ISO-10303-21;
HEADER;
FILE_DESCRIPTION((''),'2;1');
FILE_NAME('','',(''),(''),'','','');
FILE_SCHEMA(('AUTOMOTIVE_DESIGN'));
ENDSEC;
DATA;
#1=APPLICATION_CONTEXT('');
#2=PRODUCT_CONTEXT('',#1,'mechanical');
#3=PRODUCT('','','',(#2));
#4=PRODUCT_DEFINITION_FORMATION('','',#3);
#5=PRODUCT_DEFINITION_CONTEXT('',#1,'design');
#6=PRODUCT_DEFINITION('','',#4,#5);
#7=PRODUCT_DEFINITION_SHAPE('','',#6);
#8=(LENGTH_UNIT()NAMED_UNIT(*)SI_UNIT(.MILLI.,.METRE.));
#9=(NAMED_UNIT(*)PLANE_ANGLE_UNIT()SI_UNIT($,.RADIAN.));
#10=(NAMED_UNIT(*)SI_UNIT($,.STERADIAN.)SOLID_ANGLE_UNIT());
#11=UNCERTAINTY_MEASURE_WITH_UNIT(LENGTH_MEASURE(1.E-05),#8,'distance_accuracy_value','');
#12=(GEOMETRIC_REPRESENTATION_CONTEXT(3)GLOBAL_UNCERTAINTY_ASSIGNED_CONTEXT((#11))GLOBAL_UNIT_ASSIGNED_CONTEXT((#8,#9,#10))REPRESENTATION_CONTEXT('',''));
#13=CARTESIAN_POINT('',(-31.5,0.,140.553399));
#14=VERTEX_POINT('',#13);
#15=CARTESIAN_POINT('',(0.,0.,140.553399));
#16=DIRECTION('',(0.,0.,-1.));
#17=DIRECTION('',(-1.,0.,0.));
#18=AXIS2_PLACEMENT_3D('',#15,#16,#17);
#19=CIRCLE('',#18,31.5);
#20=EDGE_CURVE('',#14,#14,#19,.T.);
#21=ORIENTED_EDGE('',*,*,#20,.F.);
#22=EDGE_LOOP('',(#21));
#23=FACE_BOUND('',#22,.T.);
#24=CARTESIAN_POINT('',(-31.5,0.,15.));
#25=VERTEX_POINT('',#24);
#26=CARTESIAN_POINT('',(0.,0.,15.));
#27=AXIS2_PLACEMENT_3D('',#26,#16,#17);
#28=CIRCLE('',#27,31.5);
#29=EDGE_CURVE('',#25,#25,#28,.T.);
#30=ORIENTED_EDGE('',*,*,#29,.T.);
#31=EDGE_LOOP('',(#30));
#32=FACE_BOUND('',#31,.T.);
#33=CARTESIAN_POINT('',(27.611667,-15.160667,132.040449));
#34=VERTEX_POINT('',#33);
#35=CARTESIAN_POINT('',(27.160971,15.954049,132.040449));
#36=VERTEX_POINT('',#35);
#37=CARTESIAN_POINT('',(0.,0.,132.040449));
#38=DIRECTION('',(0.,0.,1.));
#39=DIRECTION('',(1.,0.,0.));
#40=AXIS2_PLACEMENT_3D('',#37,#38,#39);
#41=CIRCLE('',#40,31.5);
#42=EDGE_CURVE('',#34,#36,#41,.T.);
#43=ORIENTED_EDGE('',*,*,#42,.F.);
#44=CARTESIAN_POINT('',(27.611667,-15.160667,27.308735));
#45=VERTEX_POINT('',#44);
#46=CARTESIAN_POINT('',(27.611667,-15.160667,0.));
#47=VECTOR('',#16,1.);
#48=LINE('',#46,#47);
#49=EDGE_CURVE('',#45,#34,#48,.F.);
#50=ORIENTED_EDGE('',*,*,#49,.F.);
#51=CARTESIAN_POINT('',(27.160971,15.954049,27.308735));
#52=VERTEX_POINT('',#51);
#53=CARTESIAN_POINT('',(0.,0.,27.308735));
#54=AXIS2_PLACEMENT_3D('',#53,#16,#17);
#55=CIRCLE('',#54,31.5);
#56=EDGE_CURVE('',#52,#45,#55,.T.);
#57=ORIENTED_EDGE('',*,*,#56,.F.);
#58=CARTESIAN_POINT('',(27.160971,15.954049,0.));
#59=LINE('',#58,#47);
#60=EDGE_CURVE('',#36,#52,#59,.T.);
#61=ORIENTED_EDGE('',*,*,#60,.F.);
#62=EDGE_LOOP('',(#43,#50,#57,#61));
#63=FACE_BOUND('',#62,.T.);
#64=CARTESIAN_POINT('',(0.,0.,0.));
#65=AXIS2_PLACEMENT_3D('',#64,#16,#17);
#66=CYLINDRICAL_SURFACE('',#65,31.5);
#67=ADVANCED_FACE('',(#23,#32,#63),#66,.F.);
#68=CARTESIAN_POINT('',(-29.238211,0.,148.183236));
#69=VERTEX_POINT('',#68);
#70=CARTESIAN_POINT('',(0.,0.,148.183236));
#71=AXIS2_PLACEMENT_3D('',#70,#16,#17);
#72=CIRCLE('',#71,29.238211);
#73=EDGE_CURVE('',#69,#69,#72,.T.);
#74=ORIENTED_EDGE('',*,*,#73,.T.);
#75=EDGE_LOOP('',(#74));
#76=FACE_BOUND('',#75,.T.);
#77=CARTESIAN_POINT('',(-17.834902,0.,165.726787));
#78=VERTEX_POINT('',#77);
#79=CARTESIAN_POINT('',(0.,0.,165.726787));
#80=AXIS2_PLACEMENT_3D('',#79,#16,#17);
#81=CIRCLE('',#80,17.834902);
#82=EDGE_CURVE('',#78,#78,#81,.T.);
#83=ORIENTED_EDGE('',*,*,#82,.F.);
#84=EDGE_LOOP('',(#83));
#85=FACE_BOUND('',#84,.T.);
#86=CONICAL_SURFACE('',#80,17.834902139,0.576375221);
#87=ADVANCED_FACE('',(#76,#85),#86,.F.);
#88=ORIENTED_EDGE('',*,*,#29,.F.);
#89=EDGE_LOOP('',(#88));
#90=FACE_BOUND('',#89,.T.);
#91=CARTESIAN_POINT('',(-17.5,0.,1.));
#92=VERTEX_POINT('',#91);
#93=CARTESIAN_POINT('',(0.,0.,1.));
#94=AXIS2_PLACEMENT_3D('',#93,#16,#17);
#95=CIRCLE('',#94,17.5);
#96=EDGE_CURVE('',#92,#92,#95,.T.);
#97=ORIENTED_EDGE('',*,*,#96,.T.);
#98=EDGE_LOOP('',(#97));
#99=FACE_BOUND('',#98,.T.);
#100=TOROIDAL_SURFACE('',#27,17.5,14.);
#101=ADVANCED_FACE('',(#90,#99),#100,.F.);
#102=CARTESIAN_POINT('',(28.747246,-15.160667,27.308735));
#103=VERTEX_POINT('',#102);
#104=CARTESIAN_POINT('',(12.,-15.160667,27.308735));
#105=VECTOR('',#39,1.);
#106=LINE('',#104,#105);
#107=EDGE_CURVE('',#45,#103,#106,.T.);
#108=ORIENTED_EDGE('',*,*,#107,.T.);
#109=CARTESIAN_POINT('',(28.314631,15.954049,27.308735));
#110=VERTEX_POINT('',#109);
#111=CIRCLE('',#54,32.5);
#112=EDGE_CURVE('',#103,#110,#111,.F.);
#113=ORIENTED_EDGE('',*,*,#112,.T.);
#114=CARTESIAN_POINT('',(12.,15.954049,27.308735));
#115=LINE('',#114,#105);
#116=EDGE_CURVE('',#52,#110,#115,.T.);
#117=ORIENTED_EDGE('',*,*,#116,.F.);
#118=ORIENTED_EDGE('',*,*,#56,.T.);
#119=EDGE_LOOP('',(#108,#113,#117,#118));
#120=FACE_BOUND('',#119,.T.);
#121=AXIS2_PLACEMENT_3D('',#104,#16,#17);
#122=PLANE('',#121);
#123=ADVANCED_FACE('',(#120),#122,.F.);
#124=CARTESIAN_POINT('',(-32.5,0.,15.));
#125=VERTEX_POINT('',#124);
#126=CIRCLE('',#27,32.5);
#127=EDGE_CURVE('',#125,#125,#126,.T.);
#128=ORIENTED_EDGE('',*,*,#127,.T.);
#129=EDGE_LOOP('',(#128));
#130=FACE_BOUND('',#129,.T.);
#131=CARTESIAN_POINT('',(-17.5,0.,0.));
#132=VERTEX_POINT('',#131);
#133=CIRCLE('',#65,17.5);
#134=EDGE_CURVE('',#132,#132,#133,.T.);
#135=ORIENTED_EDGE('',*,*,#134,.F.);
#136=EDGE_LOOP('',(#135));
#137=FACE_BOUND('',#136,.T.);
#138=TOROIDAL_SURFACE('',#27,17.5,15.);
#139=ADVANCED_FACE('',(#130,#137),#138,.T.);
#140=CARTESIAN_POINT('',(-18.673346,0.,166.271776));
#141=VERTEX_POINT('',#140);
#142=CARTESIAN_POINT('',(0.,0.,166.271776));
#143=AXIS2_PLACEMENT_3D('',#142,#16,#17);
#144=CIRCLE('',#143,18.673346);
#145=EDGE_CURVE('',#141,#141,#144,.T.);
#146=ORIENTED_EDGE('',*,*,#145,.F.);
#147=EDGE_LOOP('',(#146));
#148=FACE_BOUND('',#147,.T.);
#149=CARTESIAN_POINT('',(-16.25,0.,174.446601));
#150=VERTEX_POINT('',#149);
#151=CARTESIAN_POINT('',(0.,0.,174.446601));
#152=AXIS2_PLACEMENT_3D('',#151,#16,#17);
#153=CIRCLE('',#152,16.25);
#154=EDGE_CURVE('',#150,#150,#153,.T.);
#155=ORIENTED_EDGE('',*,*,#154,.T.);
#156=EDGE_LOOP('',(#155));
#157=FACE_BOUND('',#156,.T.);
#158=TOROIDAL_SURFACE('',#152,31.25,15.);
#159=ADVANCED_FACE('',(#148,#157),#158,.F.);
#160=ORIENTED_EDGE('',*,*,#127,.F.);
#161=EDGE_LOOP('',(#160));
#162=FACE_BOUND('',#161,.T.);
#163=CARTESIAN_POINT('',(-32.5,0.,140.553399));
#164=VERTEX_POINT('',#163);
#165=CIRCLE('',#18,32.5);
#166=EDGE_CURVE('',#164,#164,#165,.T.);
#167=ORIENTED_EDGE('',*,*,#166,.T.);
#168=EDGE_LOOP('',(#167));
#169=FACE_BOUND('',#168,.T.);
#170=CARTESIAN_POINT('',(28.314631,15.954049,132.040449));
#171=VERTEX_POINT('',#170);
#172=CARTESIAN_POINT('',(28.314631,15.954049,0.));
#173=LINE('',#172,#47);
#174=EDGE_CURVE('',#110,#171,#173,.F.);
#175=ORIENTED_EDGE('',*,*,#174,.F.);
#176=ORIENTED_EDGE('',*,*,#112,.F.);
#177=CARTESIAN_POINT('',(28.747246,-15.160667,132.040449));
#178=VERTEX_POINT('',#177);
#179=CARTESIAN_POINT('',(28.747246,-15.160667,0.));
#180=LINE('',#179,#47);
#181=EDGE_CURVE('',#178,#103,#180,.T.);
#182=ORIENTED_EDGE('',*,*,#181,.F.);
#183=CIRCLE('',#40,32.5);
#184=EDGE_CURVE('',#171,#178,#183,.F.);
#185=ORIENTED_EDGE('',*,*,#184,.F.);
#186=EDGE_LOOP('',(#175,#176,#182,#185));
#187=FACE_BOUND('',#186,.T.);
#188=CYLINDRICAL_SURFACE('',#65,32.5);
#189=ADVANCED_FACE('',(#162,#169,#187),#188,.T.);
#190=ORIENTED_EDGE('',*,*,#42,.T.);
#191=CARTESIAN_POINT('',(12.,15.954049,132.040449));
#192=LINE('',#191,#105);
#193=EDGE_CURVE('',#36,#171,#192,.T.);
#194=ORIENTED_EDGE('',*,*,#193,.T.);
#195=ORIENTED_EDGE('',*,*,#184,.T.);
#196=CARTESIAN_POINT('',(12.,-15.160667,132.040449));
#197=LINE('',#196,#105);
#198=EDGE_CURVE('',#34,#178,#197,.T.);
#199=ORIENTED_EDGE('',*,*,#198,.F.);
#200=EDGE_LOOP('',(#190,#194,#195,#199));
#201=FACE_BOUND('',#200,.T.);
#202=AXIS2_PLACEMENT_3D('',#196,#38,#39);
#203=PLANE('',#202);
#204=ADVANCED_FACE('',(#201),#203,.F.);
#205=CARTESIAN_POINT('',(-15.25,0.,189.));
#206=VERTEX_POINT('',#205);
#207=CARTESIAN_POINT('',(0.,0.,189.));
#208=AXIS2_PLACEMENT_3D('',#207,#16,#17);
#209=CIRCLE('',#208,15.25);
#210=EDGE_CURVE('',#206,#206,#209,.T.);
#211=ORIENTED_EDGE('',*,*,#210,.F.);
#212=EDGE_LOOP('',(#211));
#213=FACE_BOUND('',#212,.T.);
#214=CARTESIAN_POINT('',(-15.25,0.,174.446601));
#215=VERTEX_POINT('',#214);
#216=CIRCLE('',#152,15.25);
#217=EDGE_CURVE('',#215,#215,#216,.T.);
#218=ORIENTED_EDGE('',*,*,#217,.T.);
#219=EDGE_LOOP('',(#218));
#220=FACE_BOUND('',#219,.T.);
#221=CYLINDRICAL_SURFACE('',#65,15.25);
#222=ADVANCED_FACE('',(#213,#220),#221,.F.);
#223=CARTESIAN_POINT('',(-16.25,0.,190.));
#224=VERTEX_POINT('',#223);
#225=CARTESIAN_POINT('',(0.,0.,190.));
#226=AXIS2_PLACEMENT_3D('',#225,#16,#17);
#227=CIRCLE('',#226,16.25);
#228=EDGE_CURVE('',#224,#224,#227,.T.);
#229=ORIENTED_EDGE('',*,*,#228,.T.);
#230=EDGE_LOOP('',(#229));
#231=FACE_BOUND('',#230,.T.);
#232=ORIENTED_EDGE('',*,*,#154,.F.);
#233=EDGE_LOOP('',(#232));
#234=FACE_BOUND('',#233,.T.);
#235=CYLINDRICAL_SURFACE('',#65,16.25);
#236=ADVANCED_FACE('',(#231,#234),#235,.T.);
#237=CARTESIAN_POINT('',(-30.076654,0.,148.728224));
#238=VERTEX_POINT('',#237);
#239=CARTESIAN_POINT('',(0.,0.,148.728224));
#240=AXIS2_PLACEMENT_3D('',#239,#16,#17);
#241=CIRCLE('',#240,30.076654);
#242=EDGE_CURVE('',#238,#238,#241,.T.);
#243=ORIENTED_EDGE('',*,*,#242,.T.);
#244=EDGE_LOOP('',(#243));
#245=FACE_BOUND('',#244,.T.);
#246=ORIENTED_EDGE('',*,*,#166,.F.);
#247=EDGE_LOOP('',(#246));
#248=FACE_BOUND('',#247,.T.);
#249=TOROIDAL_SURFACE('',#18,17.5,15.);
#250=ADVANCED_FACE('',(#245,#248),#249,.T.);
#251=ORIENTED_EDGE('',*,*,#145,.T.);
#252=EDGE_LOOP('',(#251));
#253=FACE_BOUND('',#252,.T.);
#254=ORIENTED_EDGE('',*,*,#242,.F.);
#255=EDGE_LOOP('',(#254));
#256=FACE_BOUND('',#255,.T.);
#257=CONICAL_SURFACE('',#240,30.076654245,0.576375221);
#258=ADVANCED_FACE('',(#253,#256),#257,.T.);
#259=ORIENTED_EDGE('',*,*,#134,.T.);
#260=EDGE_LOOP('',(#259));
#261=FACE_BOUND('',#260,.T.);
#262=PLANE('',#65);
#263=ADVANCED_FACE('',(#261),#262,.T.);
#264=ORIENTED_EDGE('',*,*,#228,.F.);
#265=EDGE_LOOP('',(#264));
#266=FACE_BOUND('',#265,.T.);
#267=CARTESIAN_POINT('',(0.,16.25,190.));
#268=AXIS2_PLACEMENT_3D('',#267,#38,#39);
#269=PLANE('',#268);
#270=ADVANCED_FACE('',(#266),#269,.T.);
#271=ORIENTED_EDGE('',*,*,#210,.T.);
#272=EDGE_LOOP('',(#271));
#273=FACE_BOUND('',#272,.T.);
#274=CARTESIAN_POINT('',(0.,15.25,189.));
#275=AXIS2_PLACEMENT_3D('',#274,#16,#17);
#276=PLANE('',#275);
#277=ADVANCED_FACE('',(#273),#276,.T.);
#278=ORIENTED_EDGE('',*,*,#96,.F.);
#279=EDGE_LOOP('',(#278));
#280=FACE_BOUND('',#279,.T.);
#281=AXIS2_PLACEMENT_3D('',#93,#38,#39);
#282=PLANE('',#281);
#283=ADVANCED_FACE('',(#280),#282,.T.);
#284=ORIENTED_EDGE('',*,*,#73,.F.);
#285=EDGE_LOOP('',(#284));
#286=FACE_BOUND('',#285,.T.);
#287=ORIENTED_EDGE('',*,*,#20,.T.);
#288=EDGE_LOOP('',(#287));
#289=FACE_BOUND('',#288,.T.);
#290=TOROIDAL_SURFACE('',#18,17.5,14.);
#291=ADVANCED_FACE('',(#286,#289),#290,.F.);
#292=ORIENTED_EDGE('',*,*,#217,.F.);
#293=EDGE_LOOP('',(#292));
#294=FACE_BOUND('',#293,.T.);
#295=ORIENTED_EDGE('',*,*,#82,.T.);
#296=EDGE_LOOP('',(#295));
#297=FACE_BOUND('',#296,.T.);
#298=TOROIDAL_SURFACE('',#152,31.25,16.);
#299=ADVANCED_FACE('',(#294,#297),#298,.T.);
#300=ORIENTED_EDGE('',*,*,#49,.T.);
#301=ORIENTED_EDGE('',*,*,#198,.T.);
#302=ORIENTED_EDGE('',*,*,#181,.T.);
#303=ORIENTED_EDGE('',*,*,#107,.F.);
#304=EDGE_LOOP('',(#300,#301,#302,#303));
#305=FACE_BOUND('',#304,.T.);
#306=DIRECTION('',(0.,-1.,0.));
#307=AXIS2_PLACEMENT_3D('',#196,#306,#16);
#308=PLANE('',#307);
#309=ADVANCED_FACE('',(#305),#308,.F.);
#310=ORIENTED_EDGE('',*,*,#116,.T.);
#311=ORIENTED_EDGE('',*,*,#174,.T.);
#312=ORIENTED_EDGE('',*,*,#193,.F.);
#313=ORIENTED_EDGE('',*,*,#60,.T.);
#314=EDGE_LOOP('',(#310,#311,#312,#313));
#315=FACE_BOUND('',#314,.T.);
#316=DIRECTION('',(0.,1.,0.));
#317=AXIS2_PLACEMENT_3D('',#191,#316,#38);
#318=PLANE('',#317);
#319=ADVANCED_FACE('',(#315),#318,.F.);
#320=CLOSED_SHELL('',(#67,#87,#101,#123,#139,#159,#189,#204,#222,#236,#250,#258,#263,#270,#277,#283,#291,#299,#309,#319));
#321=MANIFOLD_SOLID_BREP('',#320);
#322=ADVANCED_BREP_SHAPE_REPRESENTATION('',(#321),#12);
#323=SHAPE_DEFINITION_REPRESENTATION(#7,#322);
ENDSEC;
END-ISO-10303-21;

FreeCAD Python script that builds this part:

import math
import FreeCAD as App
import Part
import Sketcher
from FreeCAD import Vector
Q = App.Units.Quantity


def add_polygon(sketch, points):
    """Adds a closed chain of lines whose ends are joined by coincident constraints."""
    first, n = sketch.GeometryCount, len(points)
    for a, b in zip(points, points[1:] + points[:1]):
        sketch.addGeometry(Part.LineSegment(App.Vector(*a, 0), App.Vector(*b, 0)), False)
    for i in range(n):
        sketch.addConstraint(Sketcher.Constraint("Coincident", first + i, 2, first + (i + 1) % n, 1))

doc = App.newDocument("Part")
body = doc.addObject("PartDesign::Body", "Body")

sketch1 = body.newObject("Sketcher::SketchObject", "Sketch")
sketch1.AttachmentSupport = (doc.getObject("YZ_Plane"), [""])
sketch1.MapMode = "FlatFace"
sketch1.addGeometry([
    Part.LineSegment(Vector(0, 0, 0), Vector(17.5, 0, 0)),
    Part.ArcOfCircle(Part.Circle(Vector(17.5, 15, 0), Vector(0, 0, 1), 15), math.radians(-90), math.radians(0)),
    Part.LineSegment(Vector(32.5, 15, 0), Vector(32.5, 140.553399, 0)),
    Part.ArcOfCircle(Part.Circle(Vector(17.5, 140.553399, 0), Vector(0, 0, 1), 15), math.radians(0), math.radians(33.023868)),
    Part.LineSegment(Vector(30.076654, 148.728224, 0), Vector(18.673346, 166.271776, 0)),
    Part.ArcOfCircle(Part.Circle(Vector(31.25, 174.446601, 0), Vector(0, 0, 1), 15), math.radians(-180), math.radians(-146.976132)),
    Part.LineSegment(Vector(16.25, 174.446601, 0), Vector(16.25, 190, 0)),
    Part.LineSegment(Vector(16.25, 190, 0), Vector(0, 190, 0)),
    Part.LineSegment(Vector(0, 190, 0), Vector(0, 189, 0)),
    Part.LineSegment(Vector(0, 189, 0), Vector(15.25, 189, 0)),
    Part.LineSegment(Vector(15.25, 189, 0), Vector(15.25, 174.446601, 0)),
    Part.ArcOfCircle(Part.Circle(Vector(31.25, 174.446601, 0), Vector(0, 0, 1), 16), math.radians(180), math.radians(213.023868)),
    Part.LineSegment(Vector(17.834902, 165.726787, 0), Vector(29.238211, 148.183236, 0)),
    Part.ArcOfCircle(Part.Circle(Vector(17.5, 140.553399, 0), Vector(0, 0, 1), 14), math.radians(0), math.radians(33.023868)),
    Part.LineSegment(Vector(31.5, 140.553399, 0), Vector(31.5, 15, 0)),
    Part.ArcOfCircle(Part.Circle(Vector(17.5, 15, 0), Vector(0, 0, 1), 14), math.radians(-90), math.radians(0)),
    Part.LineSegment(Vector(17.5, 1, 0), Vector(0, 1, 0)),
    Part.LineSegment(Vector(0, 1, 0), Vector(0, 0, 0)),
], False)
sketch1.addConstraint([
    Sketcher.Constraint("Tangent", 0, 2, 1, 1),
    Sketcher.Constraint("Tangent", 1, 2, 2, 1),
    Sketcher.Constraint("Tangent", 2, 2, 3, 1),
    Sketcher.Constraint("Tangent", 3, 2, 4, 1),
    Sketcher.Constraint("Tangent", 4, 2, 5, 2),
    Sketcher.Constraint("Tangent", 5, 1, 6, 1),
    Sketcher.Constraint("Coincident", 6, 2, 7, 1),
    Sketcher.Constraint("Coincident", 7, 2, 8, 1),
    Sketcher.Constraint("Coincident", 8, 2, 9, 1),
    Sketcher.Constraint("Coincident", 9, 2, 10, 1),
    Sketcher.Constraint("Tangent", 10, 2, 11, 1),
    Sketcher.Constraint("Tangent", 11, 2, 12, 1),
    Sketcher.Constraint("Tangent", 12, 2, 13, 2),
    Sketcher.Constraint("Tangent", 13, 1, 14, 1),
    Sketcher.Constraint("Tangent", 14, 2, 15, 2),
    Sketcher.Constraint("Tangent", 15, 1, 16, 1),
    Sketcher.Constraint("Coincident", 16, 2, 17, 1),
    Sketcher.Constraint("Coincident", 17, 2, 0, 1),
    Sketcher.Constraint("Horizontal", 0),
    Sketcher.Constraint("Vertical", 2),
    Sketcher.Constraint("Vertical", 6),
    Sketcher.Constraint("Horizontal", 7),
    Sketcher.Constraint("Vertical", 8),
    Sketcher.Constraint("Horizontal", 9),
    Sketcher.Constraint("Vertical", 10),
    Sketcher.Constraint("Vertical", 14),
    Sketcher.Constraint("Horizontal", 16),
    Sketcher.Constraint("Vertical", 17),
    Sketcher.Constraint("Coincident", 17, 2, -1, 1),
    Sketcher.Constraint("Coincident", 11, 3, 5, 3),
    Sketcher.Constraint("Coincident", 13, 3, 3, 3),
    Sketcher.Constraint("Coincident", 15, 3, 1, 3),
    Sketcher.Constraint("Equal", 1, 3),
    Sketcher.Constraint("Equal", 3, 5),
    Sketcher.Constraint("PointOnObject", 7, 2, -2),
    Sketcher.Constraint("Parallel", 4, 12),
    Sketcher.Constraint("Equal", 8, 17),
    Sketcher.Constraint("Radius", 1, Q("15 mm")),
    Sketcher.Constraint("Radius", 11, Q("16 mm")),
    Sketcher.Constraint("DistanceX", 0, 1, 0, 2, Q("17.5 mm")),
    Sketcher.Constraint("DistanceY", -1, 1, 6, 2, Q("190 mm")),
    Sketcher.Constraint("DistanceX", 7, 2, 7, 1, Q("16.25 mm")),
    Sketcher.Constraint("DistanceY", 2, 1, 2, 2, Q("125.553399 mm")),
    Sketcher.Constraint("DistanceY", 6, 1, 6, 2, Q("15.553399 mm")),
])
revolution = body.newObject("PartDesign::Revolution", "Revolution")
revolution.Profile = sketch1
revolution.ReferenceAxis = (sketch1, ["V_Axis"])
revolution.Angle = 360

sketch2 = body.newObject("Sketcher::SketchObject", "Sketch001")
sketch2.AttachmentSupport = (doc.getObject("YZ_Plane"), [""])
sketch2.MapMode = "FlatFace"
sketch2.AttachmentOffset = App.Placement(Vector(0, 0, 60), App.Rotation())
add_polygon(sketch2, [(-15.160667, 132.040449), (-15.160667, 27.308735), (15.954049, 27.308735), (15.954049, 132.040449)])
sketch2.addConstraint([
    Sketcher.Constraint("Vertical", 0),
    Sketcher.Constraint("Horizontal", 1),
    Sketcher.Constraint("Vertical", 2),
    Sketcher.Constraint("Horizontal", 3),
    Sketcher.Constraint("DistanceX", 1, 1, 1, 2, Q("31.114716 mm")),
    Sketcher.Constraint("DistanceY", 0, 2, 0, 1, Q("104.731713 mm")),
    Sketcher.Constraint("DistanceX", -1, 1, 1, 2, Q("15.954049 mm")),
    Sketcher.Constraint("DistanceY", -1, 1, 2, 2, Q("132.040449 mm")),
])
pocket1 = body.newObject("PartDesign::Pocket", "Pocket")
pocket1.Profile = sketch2
pocket1.Length = 48

doc.recompute()
